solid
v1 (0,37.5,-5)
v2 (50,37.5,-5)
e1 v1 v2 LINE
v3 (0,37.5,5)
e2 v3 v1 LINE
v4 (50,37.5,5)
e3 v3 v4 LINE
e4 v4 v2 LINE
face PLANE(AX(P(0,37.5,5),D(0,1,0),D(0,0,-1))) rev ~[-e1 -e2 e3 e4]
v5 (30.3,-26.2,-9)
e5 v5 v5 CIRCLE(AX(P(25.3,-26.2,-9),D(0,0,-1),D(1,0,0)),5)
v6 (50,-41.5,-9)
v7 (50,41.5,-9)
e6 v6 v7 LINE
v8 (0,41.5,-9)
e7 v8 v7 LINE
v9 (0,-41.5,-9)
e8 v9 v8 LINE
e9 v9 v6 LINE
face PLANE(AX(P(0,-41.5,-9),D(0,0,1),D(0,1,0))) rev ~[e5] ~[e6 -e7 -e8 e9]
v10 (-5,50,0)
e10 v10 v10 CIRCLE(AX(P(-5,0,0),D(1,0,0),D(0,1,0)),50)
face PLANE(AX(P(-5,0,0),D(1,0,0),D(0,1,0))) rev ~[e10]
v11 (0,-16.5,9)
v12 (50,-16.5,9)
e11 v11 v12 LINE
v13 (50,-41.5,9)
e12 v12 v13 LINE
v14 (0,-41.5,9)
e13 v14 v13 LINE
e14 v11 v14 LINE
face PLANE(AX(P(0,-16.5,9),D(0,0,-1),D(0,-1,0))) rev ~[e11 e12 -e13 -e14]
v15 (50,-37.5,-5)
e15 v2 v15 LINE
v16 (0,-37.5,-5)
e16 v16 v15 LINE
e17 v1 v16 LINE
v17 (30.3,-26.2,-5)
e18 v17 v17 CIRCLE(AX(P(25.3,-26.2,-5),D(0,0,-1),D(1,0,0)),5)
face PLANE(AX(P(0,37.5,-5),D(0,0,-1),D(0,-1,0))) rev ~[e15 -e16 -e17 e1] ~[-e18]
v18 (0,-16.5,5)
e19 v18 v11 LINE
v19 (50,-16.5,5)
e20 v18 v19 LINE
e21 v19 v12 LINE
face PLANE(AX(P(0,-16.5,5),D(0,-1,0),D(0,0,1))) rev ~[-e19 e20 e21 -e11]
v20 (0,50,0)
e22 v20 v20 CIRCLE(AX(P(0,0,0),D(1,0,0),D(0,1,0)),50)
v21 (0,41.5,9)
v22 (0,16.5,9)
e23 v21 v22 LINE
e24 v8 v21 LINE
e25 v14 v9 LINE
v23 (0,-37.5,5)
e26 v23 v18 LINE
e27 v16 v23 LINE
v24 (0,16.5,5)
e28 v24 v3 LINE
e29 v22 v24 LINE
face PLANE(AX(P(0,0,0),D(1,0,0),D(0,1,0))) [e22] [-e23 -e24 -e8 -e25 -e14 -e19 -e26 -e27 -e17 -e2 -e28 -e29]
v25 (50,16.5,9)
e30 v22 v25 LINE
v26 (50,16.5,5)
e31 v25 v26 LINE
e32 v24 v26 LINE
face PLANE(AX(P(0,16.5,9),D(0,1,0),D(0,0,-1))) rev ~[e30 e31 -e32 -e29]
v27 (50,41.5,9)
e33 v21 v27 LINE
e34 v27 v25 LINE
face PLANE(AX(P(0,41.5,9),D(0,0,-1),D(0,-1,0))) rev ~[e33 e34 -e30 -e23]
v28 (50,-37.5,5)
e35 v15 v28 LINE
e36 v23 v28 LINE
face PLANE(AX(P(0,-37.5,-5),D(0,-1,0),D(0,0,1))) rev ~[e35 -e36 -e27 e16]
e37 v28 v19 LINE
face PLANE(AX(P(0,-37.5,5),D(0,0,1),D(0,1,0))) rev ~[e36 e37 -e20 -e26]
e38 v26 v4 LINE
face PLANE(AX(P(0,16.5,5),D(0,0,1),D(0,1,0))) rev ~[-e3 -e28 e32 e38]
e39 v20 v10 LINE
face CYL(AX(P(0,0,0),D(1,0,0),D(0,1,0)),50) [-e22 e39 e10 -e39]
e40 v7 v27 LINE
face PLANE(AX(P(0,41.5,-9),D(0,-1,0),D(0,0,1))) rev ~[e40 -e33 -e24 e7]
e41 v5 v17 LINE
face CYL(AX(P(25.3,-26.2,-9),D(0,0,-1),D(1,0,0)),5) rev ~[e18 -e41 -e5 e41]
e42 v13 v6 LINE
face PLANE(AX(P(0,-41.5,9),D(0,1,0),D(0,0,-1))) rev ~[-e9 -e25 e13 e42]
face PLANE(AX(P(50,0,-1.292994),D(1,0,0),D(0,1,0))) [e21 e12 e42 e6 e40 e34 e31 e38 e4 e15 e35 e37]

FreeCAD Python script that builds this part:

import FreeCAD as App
import Part
import Sketcher


def add_polygon(sketch, points):
    """Adds a closed chain of lines whose ends are joined by coincident constraints."""
    first, n = sketch.GeometryCount, len(points)
    for a, b in zip(points, points[1:] + points[:1]):
        sketch.addGeometry(Part.LineSegment(App.Vector(*a, 0), App.Vector(*b, 0)), False)
    for i in range(n):
        sketch.addConstraint(Sketcher.Constraint("Coincident", first + i, 2, first + (i + 1) % n, 1))

doc = App.newDocument("Part")
body = doc.addObject("PartDesign::Body", "Body")

# Sketch on YZ plane
sketch1 = body.newObject("Sketcher::SketchObject", "Sketch")
sketch1.AttachmentSupport = (doc.getObject("YZ_Plane"), [""])
sketch1.MapMode = "FlatFace"
sketch1.addGeometry(Part.Circle(App.Vector(0, 0, 0), App.Vector(0, 0, 1), 50), False)
sketch1.addConstraint([
    Sketcher.Constraint("Coincident", 0, 3, -1, 1),
    Sketcher.Constraint("Diameter", 0, 100.0),
])
pad1 = body.newObject("PartDesign::Pad", "Pad")
pad1.Profile = sketch1
pad1.Length = 5
pad1.Reversed = True

# Sketch on YZ plane
sketch2 = body.newObject("Sketcher::SketchObject", "Sketch001")
sketch2.AttachmentSupport = (doc.getObject("YZ_Plane"), [""])
sketch2.MapMode = "FlatFace"
add_polygon(sketch2, [(-41.5, 9), (-41.5, -9), (41.5, -9), (41.5, 9), (16.5, 9), (16.5, 5), (37.5, 5), (37.5, -5), (-37.5, -5), (-37.5, 5), (-16.5, 5), (-16.5, 9)])  # lines 0-11
sketch2.addConstraint([
    Sketcher.Constraint("Vertical", 0),
    Sketcher.Constraint("Horizontal", 1),
    Sketcher.Constraint("Vertical", 2),
    Sketcher.Constraint("Horizontal", 3),
    Sketcher.Constraint("Vertical", 4),
    Sketcher.Constraint("Horizontal", 5),
    Sketcher.Constraint("Vertical", 6),
    Sketcher.Constraint("Horizontal", 7),
    Sketcher.Constraint("Vertical", 8),
    Sketcher.Constraint("Horizontal", 9),
    Sketcher.Constraint("Vertical", 10),
    Sketcher.Constraint("Horizontal", 11),
    Sketcher.Constraint("Symmetric", 0, 2, 2, 2, -1, 1),
    Sketcher.Constraint("Symmetric", 5, 2, 7, 2, -1, 1),
    Sketcher.Constraint("Symmetric", 4, 2, 9, 2, -2),
    Sketcher.Constraint("Horizontal", 3, 2, 10, 2),
    Sketcher.Constraint("DistanceX", 1, 1, 1, 2, 83.0),
    Sketcher.Constraint("DistanceX", 3, 2, 3, 1, 25.0),
    Sketcher.Constraint("DistanceX", 5, 1, 5, 2, 21.0),
    Sketcher.Constraint("DistanceY", 0, 2, 0, 1, 18.0),
    Sketcher.Constraint("DistanceY", 4, 2, 4, 1, 4.0),
])
pad2 = body.newObject("PartDesign::Pad", "Pad001")
pad2.Profile = sketch2
pad2.Length = 50

# Sketch on XY plane
sketch3 = body.newObject("Sketcher::SketchObject", "Sketch002")
sketch3.AttachmentSupport = (doc.getObject("XY_Plane"), [""])
sketch3.MapMode = "FlatFace"
sketch3.AttachmentOffset = App.Placement(App.Vector(0, 0, -9), App.Rotation())
sketch3.addGeometry(Part.Circle(App.Vector(25, -26, 0), App.Vector(0, 0, 1), 5), False)
sketch3.addConstraint([
    Sketcher.Constraint("Diameter", 0, 10.0),
    Sketcher.Constraint("DistanceX", -1, 1, 0, 3, 25.3),
    Sketcher.Constraint("DistanceY", 0, 3, -1, 1, 26.2),
])
pocket1 = body.newObject("PartDesign::Pocket", "Pocket")
pocket1.Profile = sketch3
pocket1.Length = 4
pocket1.Reversed = True

doc.recompute()
